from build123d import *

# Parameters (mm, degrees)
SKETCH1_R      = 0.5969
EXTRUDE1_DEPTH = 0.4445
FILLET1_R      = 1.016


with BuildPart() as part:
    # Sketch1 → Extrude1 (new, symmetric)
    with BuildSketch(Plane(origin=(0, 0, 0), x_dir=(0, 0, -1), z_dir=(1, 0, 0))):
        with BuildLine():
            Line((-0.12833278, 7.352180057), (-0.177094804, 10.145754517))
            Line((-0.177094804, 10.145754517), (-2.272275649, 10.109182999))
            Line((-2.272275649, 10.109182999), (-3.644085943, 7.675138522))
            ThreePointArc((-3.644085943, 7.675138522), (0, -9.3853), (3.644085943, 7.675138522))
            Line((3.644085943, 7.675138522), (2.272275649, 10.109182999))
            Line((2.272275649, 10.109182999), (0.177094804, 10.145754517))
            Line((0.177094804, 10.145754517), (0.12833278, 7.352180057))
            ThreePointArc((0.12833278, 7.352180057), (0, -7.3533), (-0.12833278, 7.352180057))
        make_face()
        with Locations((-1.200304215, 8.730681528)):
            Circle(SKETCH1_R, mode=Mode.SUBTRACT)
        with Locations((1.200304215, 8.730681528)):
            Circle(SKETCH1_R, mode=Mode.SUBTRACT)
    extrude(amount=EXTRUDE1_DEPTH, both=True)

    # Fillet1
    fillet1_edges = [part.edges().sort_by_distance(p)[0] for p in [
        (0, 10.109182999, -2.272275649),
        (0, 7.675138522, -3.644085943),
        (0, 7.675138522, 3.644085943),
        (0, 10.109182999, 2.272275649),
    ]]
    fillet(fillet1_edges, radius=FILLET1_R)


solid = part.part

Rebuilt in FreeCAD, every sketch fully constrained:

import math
import FreeCAD as App
import Part
import Sketcher
from FreeCAD import Vector
Q = App.Units.Quantity


def edges_at(feature, points):
    """Names of the edges that pass closest to the given points."""
    edges = feature.Shape.Edges
    near = lambda p: min(range(len(edges)), key=lambda i: edges[i].distToShape(Part.Vertex(*p))[0])
    return sorted({f"Edge{near(p) + 1}" for p in points})

doc = App.newDocument("Part")
body = doc.addObject("PartDesign::Body", "Body")

# Sketch on YZ plane
sketch1 = body.newObject("Sketcher::SketchObject", "Sketch")
sketch1.AttachmentSupport = (doc.getObject("YZ_Plane"), [""])
sketch1.MapMode = "FlatFace"
sketch1.addGeometry(Part.LineSegment(Vector(7.35218, 0.128333, 0), Vector(10.145755, 0.177095, 0)), False)
sketch1.addGeometry(Part.LineSegment(Vector(10.145755, 0.177095, 0), Vector(10.109183, 2.272276, 0)), False)
sketch1.addGeometry(Part.LineSegment(Vector(10.109183, 2.272276, 0), Vector(7.675139, 3.644086, 0)), False)
sketch1.addGeometry(Part.ArcOfCircle(Part.Circle(Vector(-0.465895, 0, 0), Vector(0, 0, 1), 8.919405), math.radians(24.114224), math.radians(335.885776)), False)
sketch1.addGeometry(Part.LineSegment(Vector(7.675139, -3.644086, 0), Vector(10.109183, -2.272276, 0)), False)
sketch1.addGeometry(Part.LineSegment(Vector(10.109183, -2.272276, 0), Vector(10.145755, -0.177095, 0)), False)
sketch1.addGeometry(Part.LineSegment(Vector(10.145755, -0.177095, 0), Vector(7.35218, -0.128333, 0)), False)
sketch1.addGeometry(Part.ArcOfCircle(Part.Circle(Vector(0, 0, 0), Vector(0, 0, 1), 7.3533), math.radians(1), math.radians(359)), False)
sketch1.addGeometry(Part.Circle(Vector(8.730682, 1.200304, 0), Vector(0, 0, 1), 0.5969), False)
sketch1.addGeometry(Part.Circle(Vector(8.730682, -1.200304, 0), Vector(0, 0, 1), 0.5969), False)
sketch1.addConstraint(Sketcher.Constraint("Coincident", 0, 2, 1, 1))
sketch1.addConstraint(Sketcher.Constraint("Coincident", 1, 2, 2, 1))
sketch1.addConstraint(Sketcher.Constraint("Coincident", 2, 2, 3, 1))
sketch1.addConstraint(Sketcher.Constraint("Coincident", 3, 2, 4, 1))
sketch1.addConstraint(Sketcher.Constraint("Coincident", 4, 2, 5, 1))
sketch1.addConstraint(Sketcher.Constraint("Coincident", 5, 2, 6, 1))
sketch1.addConstraint(Sketcher.Constraint("Coincident", 6, 2, 7, 2))
sketch1.addConstraint(Sketcher.Constraint("Coincident", 7, 1, 0, 1))
sketch1.addConstraint(Sketcher.Constraint("Coincident", 7, 3, -1, 1))
sketch1.addConstraint(Sketcher.Constraint("Equal", 8, 9))
sketch1.addConstraint(Sketcher.Constraint("Symmetric", 8, 3, 9, 3, -1))
sketch1.addConstraint(Sketcher.Constraint("Symmetric", 2, 2, 3, 2, -1))
sketch1.addConstraint(Sketcher.Constraint("Symmetric", 1, 2, 4, 2, -1))
sketch1.addConstraint(Sketcher.Constraint("Symmetric", 0, 2, 5, 2, -1))
sketch1.addConstraint(Sketcher.Constraint("Perpendicular", 0, 1))
sketch1.addConstraint(Sketcher.Constraint("Perpendicular", 5, 6))
sketch1.addConstraint(Sketcher.Constraint("Equal", 0, 2))
sketch1.addConstraint(Sketcher.Constraint("Diameter", 8, Q("0.047 in")))
sketch1.addConstraint(Sketcher.Constraint("Angle", 0, Q("1 deg")))
sketch1.addConstraint(Sketcher.Constraint("Radius", 7, Q("0.2895 in")))
sketch1.addConstraint(Sketcher.Constraint("Distance", 0, Q("0.11 in")))
sketch1.addConstraint(Sketcher.Constraint("Distance", 1, Q("0.0825 in")))
sketch1.addConstraint(Sketcher.Constraint("Radius", 3, Q("8.919405 mm")))
sketch1.addConstraint(Sketcher.Constraint("DistanceY", 9, 3, 0, 2, Q("1.377399 mm")))
sketch1.addConstraint(Sketcher.Constraint("DistanceX", 8, 3, 1, 2, Q("1.378501 mm")))
sketch1.addConstraint(Sketcher.Constraint("DistanceX", -1, 1, 8, 3, Q("8.730682 mm")))
sketch1.addConstraint(Sketcher.Constraint("DistanceX", -1, 1, 2, 2, Q("7.675139 mm")))
pad1 = body.newObject("PartDesign::Pad", "Pad")
pad1.Profile = sketch1
pad1.Length = Q("0.035 in")
pad1.Midplane = True
doc.recompute()

fillet = body.newObject("PartDesign::Fillet", "Fillet")
fillet.Base = (pad1, edges_at(pad1, [
    (0, 10.109, -2.272),
    (0, 7.675, -3.644),
    (0, 7.675, 3.644),
    (0, 10.109, 2.272),
]))
fillet.Radius = Q("0.04 in")

doc.recompute()
